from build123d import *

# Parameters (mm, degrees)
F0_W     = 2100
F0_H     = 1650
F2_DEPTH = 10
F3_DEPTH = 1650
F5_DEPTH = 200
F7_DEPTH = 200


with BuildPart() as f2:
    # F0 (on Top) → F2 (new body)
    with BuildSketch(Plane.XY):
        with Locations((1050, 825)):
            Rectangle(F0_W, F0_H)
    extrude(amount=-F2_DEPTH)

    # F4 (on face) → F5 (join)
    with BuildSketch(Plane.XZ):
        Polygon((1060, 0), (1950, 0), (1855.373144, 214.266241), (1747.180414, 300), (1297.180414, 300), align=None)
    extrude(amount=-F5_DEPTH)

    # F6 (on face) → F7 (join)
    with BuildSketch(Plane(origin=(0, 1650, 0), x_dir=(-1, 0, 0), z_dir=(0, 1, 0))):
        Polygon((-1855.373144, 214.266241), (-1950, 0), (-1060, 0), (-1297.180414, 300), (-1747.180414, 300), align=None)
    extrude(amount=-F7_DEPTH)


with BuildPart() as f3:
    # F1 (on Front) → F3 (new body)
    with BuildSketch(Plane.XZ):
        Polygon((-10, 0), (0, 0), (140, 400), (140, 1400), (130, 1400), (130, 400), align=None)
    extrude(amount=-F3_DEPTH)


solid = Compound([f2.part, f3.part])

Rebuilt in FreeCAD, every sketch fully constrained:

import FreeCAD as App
import Part
import Sketcher

V = App.Vector


def add_polygon(sketch, points):
    """Adds a closed chain of lines whose ends are joined by coincident constraints."""
    first, n = sketch.GeometryCount, len(points)
    for a, b in zip(points, points[1:] + points[:1]):
        sketch.addGeometry(Part.LineSegment(App.Vector(*a, 0), App.Vector(*b, 0)), False)
    for i in range(n):
        sketch.addConstraint(Sketcher.Constraint("Coincident", first + i, 2, first + (i + 1) % n, 1))

doc = App.newDocument("Part")
body = doc.addObject("PartDesign::Body", "Body")

# Sketch on XY plane
sketch1 = body.newObject("Sketcher::SketchObject", "Sketch")
sketch1.AttachmentSupport = (doc.getObject("XY_Plane"), [""])
sketch1.MapMode = "FlatFace"
add_polygon(sketch1, [(0, 1650), (0, 0), (2100, 0), (2100, 1650)])  # lines 0-3
sketch1.addConstraint([
    Sketcher.Constraint("Vertical", 0),
    Sketcher.Constraint("Horizontal", 1),
    Sketcher.Constraint("Vertical", 2),
    Sketcher.Constraint("Horizontal", 3),
    Sketcher.Constraint("Coincident", 0, 2, -1, 1),
    Sketcher.Constraint("DistanceX", 1, 1, 1, 2, 2100.0),
    Sketcher.Constraint("DistanceY", 0, 2, 0, 1, 1650.0),
])
pad1 = body.newObject("PartDesign::Pad", "Pad")
pad1.Profile = sketch1
pad1.Length = 10
pad1.Reversed = True

# Sketch on XZ plane
sketch2 = body.newObject("Sketcher::SketchObject", "Sketch001")
sketch2.AttachmentSupport = (doc.getObject("XZ_Plane"), [""])
sketch2.MapMode = "FlatFace"
add_polygon(sketch2, [(1060, 0), (1950, 0), (1855, 214), (1747, 300), (1297, 300)])  # lines 0-4
sketch2.addConstraint([
    Sketcher.Constraint("Horizontal", 0),
    Sketcher.Constraint("Horizontal", 3),
    Sketcher.Constraint("PointOnObject", 0, 2, -1),
    Sketcher.Constraint("DistanceX", 0, 1, 0, 2, 890.0),
    Sketcher.Constraint("DistanceX", 3, 2, 3, 1, 450.0),
    Sketcher.Constraint("DistanceX", -1, 1, 0, 2, 1950.0),
    Sketcher.Constraint("DistanceY", -1, 1, 2, 2, 300.0),
    Sketcher.Constraint("Distance", 1, 234.231219),
    Sketcher.Constraint("Distance", 2, 138.04327),
    Sketcher.Constraint("Distance", 4, 382.432411),
])
pad2 = body.newObject("PartDesign::Pad", "Pad001")
pad2.Profile = sketch2
pad2.Length = 200
pad2.Reversed = True

# Sketch on XZ plane
sketch3 = body.newObject("Sketcher::SketchObject", "Sketch002")
sketch3.AttachmentSupport = (doc.getObject("XZ_Plane"), [""])
sketch3.MapMode = "FlatFace"
sketch3.AttachmentOffset = App.Placement(V(0, 0, -1650), App.Rotation())
add_polygon(sketch3, [(1855, 214), (1950, 0), (1060, 0), (1297, 300), (1747, 300)])  # lines 0-4
sketch3.addConstraint([
    Sketcher.Constraint("Horizontal", 1),
    Sketcher.Constraint("Horizontal", 3),
    Sketcher.Constraint("PointOnObject", 0, 2, -1),
    Sketcher.Constraint("DistanceX", 1, 2, 1, 1, 890.0),
    Sketcher.Constraint("DistanceX", 3, 1, 3, 2, 450.0),
    Sketcher.Constraint("DistanceX", -1, 1, 0, 2, 1950.0),
    Sketcher.Constraint("DistanceY", -1, 1, 2, 2, 300.0),
    Sketcher.Constraint("Distance", 0, 234.231219),
    Sketcher.Constraint("Distance", 2, 382.432411),
    Sketcher.Constraint("Distance", 4, 138.04327),
])
pad3 = body.newObject("PartDesign::Pad", "Pad002")
pad3.Profile = sketch3
pad3.Length = 200
body2 = doc.addObject("PartDesign::Body", "Body001")

# Sketch on XZ plane
sketch4 = body2.newObject("Sketcher::SketchObject", "Sketch003")
sketch4.AttachmentSupport = (doc.getObject("XZ_Plane001"), [""])
sketch4.MapMode = "FlatFace"
add_polygon(sketch4, [(-10, 0), (0, 0), (140, 400), (140, 1400), (130, 1400), (130, 400)])  # lines 0-5
sketch4.addConstraint([
    Sketcher.Constraint("Horizontal", 0),
    Sketcher.Constraint("Vertical", 2),
    Sketcher.Constraint("Horizontal", 3),
    Sketcher.Constraint("Vertical", 4),
    Sketcher.Constraint("Coincident", 0, 2, -1, 1),
    Sketcher.Constraint("Parallel", 1, 5),
    Sketcher.Constraint("Horizontal", 1, 2, 4, 2),
    Sketcher.Constraint("DistanceX", 0, 1, 0, 2, 10.0),
    Sketcher.Constraint("DistanceY", 2, 1, 2, 2, 1000.0),
    Sketcher.Constraint("DistanceX", -1, 1, 1, 2, 140.0),
    Sketcher.Constraint("DistanceY", -1, 1, 1, 2, 400.0),
])
pad4 = body2.newObject("PartDesign::Pad", "Pad003")
pad4.Profile = sketch4
pad4.Length = 1650
pad4.Reversed = True

doc.recompute()
